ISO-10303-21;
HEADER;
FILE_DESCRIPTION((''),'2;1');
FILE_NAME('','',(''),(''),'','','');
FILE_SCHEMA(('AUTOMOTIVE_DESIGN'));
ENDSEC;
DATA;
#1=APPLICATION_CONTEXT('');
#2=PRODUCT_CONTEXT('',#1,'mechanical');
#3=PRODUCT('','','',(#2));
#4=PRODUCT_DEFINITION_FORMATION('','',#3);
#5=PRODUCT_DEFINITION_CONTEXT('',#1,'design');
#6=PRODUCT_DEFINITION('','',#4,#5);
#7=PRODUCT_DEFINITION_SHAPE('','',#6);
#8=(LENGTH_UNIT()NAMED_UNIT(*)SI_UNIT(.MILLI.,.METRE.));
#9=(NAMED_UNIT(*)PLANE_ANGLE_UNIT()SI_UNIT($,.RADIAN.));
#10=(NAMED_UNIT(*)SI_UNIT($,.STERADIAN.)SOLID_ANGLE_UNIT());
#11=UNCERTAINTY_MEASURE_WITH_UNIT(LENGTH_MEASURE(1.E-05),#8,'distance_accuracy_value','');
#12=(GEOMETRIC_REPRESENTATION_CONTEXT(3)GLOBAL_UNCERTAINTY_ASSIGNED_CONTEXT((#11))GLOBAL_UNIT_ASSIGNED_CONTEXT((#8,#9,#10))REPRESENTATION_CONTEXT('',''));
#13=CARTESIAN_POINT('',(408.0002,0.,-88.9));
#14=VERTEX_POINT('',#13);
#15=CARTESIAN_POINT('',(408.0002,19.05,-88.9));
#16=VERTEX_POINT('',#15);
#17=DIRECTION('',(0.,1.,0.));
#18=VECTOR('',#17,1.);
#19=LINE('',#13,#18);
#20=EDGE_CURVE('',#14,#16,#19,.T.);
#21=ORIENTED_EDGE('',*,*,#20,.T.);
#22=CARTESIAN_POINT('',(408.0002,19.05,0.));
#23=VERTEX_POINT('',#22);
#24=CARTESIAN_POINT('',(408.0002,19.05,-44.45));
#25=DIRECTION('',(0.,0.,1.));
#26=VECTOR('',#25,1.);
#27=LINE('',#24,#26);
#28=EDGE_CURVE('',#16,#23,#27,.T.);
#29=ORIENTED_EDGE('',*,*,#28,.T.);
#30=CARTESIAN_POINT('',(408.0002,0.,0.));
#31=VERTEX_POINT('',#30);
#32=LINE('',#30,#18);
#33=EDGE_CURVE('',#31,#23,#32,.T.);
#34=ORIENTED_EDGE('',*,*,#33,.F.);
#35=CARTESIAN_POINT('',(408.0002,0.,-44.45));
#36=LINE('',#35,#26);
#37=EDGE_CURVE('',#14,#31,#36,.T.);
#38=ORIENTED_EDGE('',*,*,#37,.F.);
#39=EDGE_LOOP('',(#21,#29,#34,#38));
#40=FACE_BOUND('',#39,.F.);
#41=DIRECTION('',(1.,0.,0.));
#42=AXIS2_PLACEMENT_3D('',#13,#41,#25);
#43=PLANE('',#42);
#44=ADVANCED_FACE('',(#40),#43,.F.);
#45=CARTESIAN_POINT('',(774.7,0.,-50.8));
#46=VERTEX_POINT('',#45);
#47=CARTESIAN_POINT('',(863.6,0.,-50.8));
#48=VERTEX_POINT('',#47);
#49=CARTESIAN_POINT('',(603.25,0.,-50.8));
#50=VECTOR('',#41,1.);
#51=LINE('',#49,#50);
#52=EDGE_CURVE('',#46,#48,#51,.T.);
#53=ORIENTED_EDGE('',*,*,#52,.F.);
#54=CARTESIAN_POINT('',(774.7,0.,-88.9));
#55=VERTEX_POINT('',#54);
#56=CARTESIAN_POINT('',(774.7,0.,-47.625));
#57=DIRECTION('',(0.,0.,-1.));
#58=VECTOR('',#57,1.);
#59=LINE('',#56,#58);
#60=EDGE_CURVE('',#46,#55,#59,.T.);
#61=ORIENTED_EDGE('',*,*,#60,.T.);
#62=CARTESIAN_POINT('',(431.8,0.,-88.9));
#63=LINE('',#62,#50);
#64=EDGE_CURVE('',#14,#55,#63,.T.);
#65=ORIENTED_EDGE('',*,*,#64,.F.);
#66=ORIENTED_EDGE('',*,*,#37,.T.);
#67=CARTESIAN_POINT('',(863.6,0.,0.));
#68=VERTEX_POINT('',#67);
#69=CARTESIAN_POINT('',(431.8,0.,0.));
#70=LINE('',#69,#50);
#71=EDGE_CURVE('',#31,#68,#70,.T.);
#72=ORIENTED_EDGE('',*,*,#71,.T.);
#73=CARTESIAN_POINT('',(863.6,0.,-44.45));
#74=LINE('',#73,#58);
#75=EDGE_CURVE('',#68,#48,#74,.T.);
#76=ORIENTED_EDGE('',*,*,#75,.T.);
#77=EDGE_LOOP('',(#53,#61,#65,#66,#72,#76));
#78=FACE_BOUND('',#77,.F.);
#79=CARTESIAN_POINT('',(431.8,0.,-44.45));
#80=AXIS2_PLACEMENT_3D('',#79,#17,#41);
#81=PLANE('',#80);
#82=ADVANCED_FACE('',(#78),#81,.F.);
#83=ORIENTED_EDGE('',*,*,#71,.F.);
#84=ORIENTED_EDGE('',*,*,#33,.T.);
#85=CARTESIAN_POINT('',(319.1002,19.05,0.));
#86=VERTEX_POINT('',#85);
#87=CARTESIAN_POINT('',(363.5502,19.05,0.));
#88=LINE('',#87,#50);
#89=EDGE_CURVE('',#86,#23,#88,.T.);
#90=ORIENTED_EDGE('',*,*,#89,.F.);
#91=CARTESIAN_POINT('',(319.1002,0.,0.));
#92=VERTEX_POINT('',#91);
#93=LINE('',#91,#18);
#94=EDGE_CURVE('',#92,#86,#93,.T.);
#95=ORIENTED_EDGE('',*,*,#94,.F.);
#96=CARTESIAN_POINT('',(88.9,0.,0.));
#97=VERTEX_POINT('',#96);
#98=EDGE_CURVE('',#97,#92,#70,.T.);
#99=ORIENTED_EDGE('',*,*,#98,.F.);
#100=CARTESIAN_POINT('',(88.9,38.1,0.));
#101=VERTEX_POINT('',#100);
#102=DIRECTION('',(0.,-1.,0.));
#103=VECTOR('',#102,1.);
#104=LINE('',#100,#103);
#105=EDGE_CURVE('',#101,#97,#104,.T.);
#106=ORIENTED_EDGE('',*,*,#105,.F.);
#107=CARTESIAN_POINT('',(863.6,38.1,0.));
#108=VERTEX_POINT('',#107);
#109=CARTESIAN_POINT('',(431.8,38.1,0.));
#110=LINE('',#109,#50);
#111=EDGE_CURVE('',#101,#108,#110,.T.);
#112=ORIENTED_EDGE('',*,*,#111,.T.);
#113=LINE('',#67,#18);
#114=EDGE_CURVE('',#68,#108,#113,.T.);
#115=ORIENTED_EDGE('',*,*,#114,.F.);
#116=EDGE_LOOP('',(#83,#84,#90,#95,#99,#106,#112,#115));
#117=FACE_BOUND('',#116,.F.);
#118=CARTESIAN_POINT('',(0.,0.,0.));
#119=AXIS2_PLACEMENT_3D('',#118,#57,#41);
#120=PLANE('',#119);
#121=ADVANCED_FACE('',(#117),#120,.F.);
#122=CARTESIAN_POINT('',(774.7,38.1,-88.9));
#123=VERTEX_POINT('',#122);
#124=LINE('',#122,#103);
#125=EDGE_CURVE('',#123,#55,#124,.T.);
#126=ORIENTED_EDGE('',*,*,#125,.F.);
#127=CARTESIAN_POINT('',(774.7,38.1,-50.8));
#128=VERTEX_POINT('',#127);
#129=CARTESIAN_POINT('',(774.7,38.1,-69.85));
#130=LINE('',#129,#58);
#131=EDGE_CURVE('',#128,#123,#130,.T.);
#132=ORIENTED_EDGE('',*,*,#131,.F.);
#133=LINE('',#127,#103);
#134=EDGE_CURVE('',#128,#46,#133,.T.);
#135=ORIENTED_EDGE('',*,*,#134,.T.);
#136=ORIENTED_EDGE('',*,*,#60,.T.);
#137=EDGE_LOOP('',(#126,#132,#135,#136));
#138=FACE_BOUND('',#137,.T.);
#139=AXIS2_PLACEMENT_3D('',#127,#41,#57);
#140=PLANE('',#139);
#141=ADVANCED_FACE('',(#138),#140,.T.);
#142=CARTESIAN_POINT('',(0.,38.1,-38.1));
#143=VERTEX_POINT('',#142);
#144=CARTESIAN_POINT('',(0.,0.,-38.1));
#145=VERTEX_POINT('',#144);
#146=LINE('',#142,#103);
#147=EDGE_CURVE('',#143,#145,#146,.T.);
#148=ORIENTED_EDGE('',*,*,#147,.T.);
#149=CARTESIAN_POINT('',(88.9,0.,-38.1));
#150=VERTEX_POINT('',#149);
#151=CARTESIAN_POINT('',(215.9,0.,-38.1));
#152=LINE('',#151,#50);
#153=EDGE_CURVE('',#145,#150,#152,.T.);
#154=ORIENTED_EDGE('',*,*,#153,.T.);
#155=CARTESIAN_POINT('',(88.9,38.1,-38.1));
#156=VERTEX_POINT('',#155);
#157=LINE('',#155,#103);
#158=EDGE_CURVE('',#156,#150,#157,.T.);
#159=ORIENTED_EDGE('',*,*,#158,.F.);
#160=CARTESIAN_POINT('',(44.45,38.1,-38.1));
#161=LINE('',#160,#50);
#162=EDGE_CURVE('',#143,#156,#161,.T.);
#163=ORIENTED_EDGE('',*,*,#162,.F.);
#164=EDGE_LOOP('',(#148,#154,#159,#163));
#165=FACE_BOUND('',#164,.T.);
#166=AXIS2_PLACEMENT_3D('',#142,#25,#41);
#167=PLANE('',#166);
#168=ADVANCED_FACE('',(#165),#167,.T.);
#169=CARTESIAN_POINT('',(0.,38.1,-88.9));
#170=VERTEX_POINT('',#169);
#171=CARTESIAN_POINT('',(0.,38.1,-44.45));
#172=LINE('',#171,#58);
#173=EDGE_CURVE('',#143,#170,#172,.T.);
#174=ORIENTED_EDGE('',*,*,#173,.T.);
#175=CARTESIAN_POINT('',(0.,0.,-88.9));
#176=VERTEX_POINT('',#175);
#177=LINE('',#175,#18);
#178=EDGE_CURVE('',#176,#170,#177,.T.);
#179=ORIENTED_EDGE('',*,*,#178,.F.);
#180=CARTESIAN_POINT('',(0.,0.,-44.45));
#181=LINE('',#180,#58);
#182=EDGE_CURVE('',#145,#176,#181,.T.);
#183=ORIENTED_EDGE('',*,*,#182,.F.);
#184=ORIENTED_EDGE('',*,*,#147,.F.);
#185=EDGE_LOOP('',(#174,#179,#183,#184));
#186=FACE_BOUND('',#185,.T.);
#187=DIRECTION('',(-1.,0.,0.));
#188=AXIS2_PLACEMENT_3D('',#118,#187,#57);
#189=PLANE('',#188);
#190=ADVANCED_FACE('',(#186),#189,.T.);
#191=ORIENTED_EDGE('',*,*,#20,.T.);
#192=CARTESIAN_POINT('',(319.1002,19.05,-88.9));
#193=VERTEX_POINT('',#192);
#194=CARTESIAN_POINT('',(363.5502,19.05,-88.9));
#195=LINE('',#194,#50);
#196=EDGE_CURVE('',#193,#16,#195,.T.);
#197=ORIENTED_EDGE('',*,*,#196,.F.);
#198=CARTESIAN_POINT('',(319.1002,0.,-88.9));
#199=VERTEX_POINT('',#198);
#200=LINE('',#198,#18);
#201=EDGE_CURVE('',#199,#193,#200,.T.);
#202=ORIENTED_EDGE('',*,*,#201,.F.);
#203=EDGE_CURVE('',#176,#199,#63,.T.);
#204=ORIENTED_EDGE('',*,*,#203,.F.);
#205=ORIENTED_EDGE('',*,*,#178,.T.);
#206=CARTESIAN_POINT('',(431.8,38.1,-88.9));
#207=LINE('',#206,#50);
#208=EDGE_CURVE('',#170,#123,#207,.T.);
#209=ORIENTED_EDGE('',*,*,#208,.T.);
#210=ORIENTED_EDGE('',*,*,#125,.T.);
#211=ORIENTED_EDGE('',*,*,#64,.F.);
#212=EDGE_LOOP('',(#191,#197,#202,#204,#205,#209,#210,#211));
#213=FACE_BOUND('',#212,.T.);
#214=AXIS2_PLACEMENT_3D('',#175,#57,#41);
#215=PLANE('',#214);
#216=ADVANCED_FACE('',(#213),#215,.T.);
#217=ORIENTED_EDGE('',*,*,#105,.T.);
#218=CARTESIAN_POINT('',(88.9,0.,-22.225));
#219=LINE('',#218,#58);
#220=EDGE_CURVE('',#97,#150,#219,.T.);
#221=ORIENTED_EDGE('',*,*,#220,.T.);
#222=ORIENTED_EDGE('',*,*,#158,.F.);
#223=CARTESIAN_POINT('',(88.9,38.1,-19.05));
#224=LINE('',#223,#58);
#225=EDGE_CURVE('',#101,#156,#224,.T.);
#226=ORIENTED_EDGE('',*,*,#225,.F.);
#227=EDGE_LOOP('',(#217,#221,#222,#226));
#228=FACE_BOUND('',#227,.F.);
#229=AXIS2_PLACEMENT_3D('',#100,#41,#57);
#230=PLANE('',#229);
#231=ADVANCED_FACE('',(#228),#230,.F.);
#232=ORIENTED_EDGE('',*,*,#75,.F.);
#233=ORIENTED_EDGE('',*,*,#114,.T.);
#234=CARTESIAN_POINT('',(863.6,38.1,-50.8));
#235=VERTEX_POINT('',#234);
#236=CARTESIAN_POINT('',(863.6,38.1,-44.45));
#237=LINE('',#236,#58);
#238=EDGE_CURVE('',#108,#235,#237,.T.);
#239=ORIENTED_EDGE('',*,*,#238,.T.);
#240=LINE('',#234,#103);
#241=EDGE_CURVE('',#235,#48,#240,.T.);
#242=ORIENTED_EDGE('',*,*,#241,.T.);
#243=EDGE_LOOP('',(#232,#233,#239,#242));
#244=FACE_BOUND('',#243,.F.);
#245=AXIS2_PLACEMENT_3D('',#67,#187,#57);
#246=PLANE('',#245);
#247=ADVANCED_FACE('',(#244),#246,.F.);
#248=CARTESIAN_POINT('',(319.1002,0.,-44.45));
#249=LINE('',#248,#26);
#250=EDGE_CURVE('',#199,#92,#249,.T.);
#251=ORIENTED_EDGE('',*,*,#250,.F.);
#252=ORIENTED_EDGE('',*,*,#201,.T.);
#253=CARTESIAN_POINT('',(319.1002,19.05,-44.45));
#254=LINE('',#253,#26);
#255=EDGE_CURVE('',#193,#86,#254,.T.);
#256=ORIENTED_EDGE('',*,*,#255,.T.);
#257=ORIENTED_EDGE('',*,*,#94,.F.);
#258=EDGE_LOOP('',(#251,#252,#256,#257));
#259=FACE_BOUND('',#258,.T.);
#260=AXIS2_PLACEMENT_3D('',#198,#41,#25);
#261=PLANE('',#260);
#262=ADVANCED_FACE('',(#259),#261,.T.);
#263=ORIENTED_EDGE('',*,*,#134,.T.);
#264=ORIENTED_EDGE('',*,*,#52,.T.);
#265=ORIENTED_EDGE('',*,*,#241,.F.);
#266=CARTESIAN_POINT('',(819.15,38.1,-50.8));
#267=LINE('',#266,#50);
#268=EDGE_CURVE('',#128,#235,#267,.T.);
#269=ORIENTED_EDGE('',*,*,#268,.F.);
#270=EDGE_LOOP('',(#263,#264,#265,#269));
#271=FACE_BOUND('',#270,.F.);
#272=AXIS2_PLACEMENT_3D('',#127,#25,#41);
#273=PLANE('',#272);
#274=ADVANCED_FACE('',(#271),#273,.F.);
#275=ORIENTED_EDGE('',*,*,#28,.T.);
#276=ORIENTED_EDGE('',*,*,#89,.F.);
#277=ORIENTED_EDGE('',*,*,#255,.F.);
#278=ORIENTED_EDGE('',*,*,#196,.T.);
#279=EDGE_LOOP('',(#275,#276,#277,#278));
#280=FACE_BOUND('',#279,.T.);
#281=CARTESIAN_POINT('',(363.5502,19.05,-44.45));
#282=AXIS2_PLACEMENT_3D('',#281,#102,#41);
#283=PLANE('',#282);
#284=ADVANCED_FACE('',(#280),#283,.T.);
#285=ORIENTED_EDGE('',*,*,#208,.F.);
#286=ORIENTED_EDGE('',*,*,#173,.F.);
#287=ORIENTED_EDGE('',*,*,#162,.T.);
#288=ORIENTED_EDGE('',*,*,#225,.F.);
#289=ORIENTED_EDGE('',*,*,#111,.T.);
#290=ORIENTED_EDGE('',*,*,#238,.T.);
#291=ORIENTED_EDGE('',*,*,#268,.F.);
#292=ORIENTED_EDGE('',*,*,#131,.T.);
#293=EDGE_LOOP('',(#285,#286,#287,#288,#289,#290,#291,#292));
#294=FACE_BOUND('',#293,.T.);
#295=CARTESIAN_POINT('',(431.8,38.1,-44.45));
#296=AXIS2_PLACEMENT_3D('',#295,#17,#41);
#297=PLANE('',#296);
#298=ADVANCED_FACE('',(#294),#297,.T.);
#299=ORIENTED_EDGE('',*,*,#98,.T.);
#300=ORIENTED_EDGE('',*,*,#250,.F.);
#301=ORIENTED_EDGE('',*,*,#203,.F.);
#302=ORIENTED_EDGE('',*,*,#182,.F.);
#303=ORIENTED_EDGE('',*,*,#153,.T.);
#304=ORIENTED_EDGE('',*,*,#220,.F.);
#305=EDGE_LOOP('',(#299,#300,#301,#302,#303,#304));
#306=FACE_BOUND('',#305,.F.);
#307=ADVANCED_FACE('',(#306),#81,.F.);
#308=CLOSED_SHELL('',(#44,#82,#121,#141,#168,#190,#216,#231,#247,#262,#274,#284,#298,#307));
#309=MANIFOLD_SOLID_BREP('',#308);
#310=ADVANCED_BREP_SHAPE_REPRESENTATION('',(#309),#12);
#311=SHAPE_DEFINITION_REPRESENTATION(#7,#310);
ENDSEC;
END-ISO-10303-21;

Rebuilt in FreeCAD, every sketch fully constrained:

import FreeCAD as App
import Part
import Sketcher
from FreeCAD import Vector
Q = App.Units.Quantity

doc = App.newDocument("Part")
params = doc.addObject("Spreadsheet::Sheet", "Params")
for row, (alias, value) in enumerate([
    ("sketch1_width", "34 in"),
    ("sketch1_height", "3.5 in"),
    ("pad1_length", "1.5 in"),
    ("sketch2_width", "3.5 in"),
    ("pocket1_length", "0.75 in"),
    ("sketch3_width", "3.5 in"),
    ("sketch3_height", "1.5 in"),
    ("sketch4_width", "3.5 in"),
    ("sketch4_height", "1.5 in"),
], start=1):
    params.set(f"A{row}", alias)
    params.set(f"B{row}", "=" + value)
    params.setAlias(f"B{row}", alias)

body = doc.addObject("PartDesign::Body", "Body")

# Sketch on XZ plane
sketch1 = body.newObject("Sketcher::SketchObject", "Sketch")
sketch1.AttachmentSupport = (doc.getObject("XZ_Plane"), [""])
sketch1.MapMode = "FlatFace"
sketch1.addGeometry([
    Part.LineSegment(Vector(0, -89, 0), Vector(0, 0, 0)),
    Part.LineSegment(Vector(0, 0, 0), Vector(864, 0, 0)),
    Part.LineSegment(Vector(864, 0, 0), Vector(864, -89, 0)),
    Part.LineSegment(Vector(864, -89, 0), Vector(0, -89, 0)),
], False)
sketch1.addConstraint([
    Sketcher.Constraint("Coincident", 0, 2, 1, 1),
    Sketcher.Constraint("Coincident", 1, 2, 2, 1),
    Sketcher.Constraint("Coincident", 2, 2, 3, 1),
    Sketcher.Constraint("Coincident", 3, 2, 0, 1),
    Sketcher.Constraint("Vertical", 0),
    Sketcher.Constraint("Horizontal", 1),
    Sketcher.Constraint("Vertical", 2),
    Sketcher.Constraint("Horizontal", 3),
    Sketcher.Constraint("Coincident", 0, 2, -1, 1),
    Sketcher.Constraint("DistanceX", 1, 1, 1, 2, Q("34 in")),
    Sketcher.Constraint("DistanceY", 0, 1, 0, 2, Q("3.5 in")),
])
sketch1.setExpression("Constraints[9]", "Params.sketch1_width")
sketch1.setExpression("Constraints[10]", "Params.sketch1_height")
pad1 = body.newObject("PartDesign::Pad", "Pad")
pad1.Profile = sketch1
pad1.setExpression("Length", "Params.pad1_length")
pad1.Reversed = True

# Sketch on XZ plane
sketch2 = body.newObject("Sketcher::SketchObject", "Sketch001")
sketch2.AttachmentSupport = (doc.getObject("XZ_Plane"), [""])
sketch2.MapMode = "FlatFace"
sketch2.addGeometry([
    Part.LineSegment(Vector(319, 0, 0), Vector(319, -89, 0)),
    Part.LineSegment(Vector(319, -89, 0), Vector(408, -89, 0)),
    Part.LineSegment(Vector(408, -89, 0), Vector(408, 0, 0)),
    Part.LineSegment(Vector(408, 0, 0), Vector(319, 0, 0)),
], False)
sketch2.addConstraint([
    Sketcher.Constraint("Coincident", 0, 2, 1, 1),
    Sketcher.Constraint("Coincident", 1, 2, 2, 1),
    Sketcher.Constraint("Coincident", 2, 2, 3, 1),
    Sketcher.Constraint("Coincident", 3, 2, 0, 1),
    Sketcher.Constraint("Vertical", 0),
    Sketcher.Constraint("Horizontal", 1),
    Sketcher.Constraint("Vertical", 2),
    Sketcher.Constraint("Horizontal", 3),
    Sketcher.Constraint("PointOnObject", 2, 2, -1),
    Sketcher.Constraint("Equal", 3, 0),
    Sketcher.Constraint("DistanceX", 1, 1, 1, 2, Q("3.5 in")),
    Sketcher.Constraint("DistanceX", -1, 1, 0, 2, Q("12.563 in")),
])
sketch2.setExpression("Constraints[10]", "Params.sketch2_width")
pocket1 = body.newObject("PartDesign::Pocket", "Pocket")
pocket1.Profile = sketch2
pocket1.setExpression("Length", "Params.pocket1_length")

# Sketch on XZ plane
sketch3 = body.newObject("Sketcher::SketchObject", "Sketch002")
sketch3.AttachmentSupport = (doc.getObject("XZ_Plane"), [""])
sketch3.MapMode = "FlatFace"
sketch3.AttachmentOffset = App.Placement(Vector(0, 0, -1.5 * 25.4), App.Rotation())
sketch3.addGeometry([
    Part.LineSegment(Vector(0, -38, 0), Vector(0, 0, 0)),
    Part.LineSegment(Vector(0, 0, 0), Vector(89, 0, 0)),
    Part.LineSegment(Vector(89, 0, 0), Vector(89, -38, 0)),
    Part.LineSegment(Vector(89, -38, 0), Vector(0, -38, 0)),
], False)
sketch3.addConstraint([
    Sketcher.Constraint("Coincident", 0, 2, 1, 1),
    Sketcher.Constraint("Coincident", 1, 2, 2, 1),
    Sketcher.Constraint("Coincident", 2, 2, 3, 1),
    Sketcher.Constraint("Coincident", 3, 2, 0, 1),
    Sketcher.Constraint("Vertical", 0),
    Sketcher.Constraint("Horizontal", 1),
    Sketcher.Constraint("Vertical", 2),
    Sketcher.Constraint("Horizontal", 3),
    Sketcher.Constraint("Coincident", 0, 2, -1, 1),
    Sketcher.Constraint("DistanceX", 1, 1, 1, 2, Q("3.5 in")),
    Sketcher.Constraint("DistanceY", 0, 1, 0, 2, Q("1.5 in")),
])
sketch3.setExpression("Constraints[9]", "Params.sketch3_width")
sketch3.setExpression("Constraints[10]", "Params.sketch3_height")
pocket2 = body.newObject("PartDesign::Pocket", "Pocket001")
pocket2.Profile = sketch3
pocket2.Type = "ThroughAll"
pocket2.Reversed = True

# Sketch on XZ plane
sketch4 = body.newObject("Sketcher::SketchObject", "Sketch003")
sketch4.AttachmentSupport = (doc.getObject("XZ_Plane"), [""])
sketch4.MapMode = "FlatFace"
sketch4.AttachmentOffset = App.Placement(Vector(0, 0, -1.5 * 25.4), App.Rotation())
sketch4.addGeometry([
    Part.LineSegment(Vector(775, -89, 0), Vector(775, -51, 0)),
    Part.LineSegment(Vector(775, -51, 0), Vector(864, -51, 0)),
    Part.LineSegment(Vector(864, -51, 0), Vector(864, -89, 0)),
    Part.LineSegment(Vector(864, -89, 0), Vector(775, -89, 0)),
], False)
sketch4.addConstraint([
    Sketcher.Constraint("Coincident", 0, 2, 1, 1),
    Sketcher.Constraint("Coincident", 1, 2, 2, 1),
    Sketcher.Constraint("Coincident", 2, 2, 3, 1),
    Sketcher.Constraint("Coincident", 3, 2, 0, 1),
    Sketcher.Constraint("Vertical", 0),
    Sketcher.Constraint("Horizontal", 1),
    Sketcher.Constraint("Vertical", 2),
    Sketcher.Constraint("Horizontal", 3),
    Sketcher.Constraint("DistanceX", 1, 1, 1, 2, Q("3.5 in")),
    Sketcher.Constraint("DistanceY", 0, 1, 0, 2, Q("1.5 in")),
    Sketcher.Constraint("DistanceY", 0, 2, -1, 1, Q("2 in")),
    Sketcher.Constraint("DistanceX", -1, 1, 1, 2, Q("34 in")),
])
sketch4.setExpression("Constraints[8]", "Params.sketch4_width")
sketch4.setExpression("Constraints[9]", "Params.sketch4_height")
pocket3 = body.newObject("PartDesign::Pocket", "Pocket002")
pocket3.Profile = sketch4
pocket3.Type = "ThroughAll"
pocket3.Reversed = True

doc.recompute()
